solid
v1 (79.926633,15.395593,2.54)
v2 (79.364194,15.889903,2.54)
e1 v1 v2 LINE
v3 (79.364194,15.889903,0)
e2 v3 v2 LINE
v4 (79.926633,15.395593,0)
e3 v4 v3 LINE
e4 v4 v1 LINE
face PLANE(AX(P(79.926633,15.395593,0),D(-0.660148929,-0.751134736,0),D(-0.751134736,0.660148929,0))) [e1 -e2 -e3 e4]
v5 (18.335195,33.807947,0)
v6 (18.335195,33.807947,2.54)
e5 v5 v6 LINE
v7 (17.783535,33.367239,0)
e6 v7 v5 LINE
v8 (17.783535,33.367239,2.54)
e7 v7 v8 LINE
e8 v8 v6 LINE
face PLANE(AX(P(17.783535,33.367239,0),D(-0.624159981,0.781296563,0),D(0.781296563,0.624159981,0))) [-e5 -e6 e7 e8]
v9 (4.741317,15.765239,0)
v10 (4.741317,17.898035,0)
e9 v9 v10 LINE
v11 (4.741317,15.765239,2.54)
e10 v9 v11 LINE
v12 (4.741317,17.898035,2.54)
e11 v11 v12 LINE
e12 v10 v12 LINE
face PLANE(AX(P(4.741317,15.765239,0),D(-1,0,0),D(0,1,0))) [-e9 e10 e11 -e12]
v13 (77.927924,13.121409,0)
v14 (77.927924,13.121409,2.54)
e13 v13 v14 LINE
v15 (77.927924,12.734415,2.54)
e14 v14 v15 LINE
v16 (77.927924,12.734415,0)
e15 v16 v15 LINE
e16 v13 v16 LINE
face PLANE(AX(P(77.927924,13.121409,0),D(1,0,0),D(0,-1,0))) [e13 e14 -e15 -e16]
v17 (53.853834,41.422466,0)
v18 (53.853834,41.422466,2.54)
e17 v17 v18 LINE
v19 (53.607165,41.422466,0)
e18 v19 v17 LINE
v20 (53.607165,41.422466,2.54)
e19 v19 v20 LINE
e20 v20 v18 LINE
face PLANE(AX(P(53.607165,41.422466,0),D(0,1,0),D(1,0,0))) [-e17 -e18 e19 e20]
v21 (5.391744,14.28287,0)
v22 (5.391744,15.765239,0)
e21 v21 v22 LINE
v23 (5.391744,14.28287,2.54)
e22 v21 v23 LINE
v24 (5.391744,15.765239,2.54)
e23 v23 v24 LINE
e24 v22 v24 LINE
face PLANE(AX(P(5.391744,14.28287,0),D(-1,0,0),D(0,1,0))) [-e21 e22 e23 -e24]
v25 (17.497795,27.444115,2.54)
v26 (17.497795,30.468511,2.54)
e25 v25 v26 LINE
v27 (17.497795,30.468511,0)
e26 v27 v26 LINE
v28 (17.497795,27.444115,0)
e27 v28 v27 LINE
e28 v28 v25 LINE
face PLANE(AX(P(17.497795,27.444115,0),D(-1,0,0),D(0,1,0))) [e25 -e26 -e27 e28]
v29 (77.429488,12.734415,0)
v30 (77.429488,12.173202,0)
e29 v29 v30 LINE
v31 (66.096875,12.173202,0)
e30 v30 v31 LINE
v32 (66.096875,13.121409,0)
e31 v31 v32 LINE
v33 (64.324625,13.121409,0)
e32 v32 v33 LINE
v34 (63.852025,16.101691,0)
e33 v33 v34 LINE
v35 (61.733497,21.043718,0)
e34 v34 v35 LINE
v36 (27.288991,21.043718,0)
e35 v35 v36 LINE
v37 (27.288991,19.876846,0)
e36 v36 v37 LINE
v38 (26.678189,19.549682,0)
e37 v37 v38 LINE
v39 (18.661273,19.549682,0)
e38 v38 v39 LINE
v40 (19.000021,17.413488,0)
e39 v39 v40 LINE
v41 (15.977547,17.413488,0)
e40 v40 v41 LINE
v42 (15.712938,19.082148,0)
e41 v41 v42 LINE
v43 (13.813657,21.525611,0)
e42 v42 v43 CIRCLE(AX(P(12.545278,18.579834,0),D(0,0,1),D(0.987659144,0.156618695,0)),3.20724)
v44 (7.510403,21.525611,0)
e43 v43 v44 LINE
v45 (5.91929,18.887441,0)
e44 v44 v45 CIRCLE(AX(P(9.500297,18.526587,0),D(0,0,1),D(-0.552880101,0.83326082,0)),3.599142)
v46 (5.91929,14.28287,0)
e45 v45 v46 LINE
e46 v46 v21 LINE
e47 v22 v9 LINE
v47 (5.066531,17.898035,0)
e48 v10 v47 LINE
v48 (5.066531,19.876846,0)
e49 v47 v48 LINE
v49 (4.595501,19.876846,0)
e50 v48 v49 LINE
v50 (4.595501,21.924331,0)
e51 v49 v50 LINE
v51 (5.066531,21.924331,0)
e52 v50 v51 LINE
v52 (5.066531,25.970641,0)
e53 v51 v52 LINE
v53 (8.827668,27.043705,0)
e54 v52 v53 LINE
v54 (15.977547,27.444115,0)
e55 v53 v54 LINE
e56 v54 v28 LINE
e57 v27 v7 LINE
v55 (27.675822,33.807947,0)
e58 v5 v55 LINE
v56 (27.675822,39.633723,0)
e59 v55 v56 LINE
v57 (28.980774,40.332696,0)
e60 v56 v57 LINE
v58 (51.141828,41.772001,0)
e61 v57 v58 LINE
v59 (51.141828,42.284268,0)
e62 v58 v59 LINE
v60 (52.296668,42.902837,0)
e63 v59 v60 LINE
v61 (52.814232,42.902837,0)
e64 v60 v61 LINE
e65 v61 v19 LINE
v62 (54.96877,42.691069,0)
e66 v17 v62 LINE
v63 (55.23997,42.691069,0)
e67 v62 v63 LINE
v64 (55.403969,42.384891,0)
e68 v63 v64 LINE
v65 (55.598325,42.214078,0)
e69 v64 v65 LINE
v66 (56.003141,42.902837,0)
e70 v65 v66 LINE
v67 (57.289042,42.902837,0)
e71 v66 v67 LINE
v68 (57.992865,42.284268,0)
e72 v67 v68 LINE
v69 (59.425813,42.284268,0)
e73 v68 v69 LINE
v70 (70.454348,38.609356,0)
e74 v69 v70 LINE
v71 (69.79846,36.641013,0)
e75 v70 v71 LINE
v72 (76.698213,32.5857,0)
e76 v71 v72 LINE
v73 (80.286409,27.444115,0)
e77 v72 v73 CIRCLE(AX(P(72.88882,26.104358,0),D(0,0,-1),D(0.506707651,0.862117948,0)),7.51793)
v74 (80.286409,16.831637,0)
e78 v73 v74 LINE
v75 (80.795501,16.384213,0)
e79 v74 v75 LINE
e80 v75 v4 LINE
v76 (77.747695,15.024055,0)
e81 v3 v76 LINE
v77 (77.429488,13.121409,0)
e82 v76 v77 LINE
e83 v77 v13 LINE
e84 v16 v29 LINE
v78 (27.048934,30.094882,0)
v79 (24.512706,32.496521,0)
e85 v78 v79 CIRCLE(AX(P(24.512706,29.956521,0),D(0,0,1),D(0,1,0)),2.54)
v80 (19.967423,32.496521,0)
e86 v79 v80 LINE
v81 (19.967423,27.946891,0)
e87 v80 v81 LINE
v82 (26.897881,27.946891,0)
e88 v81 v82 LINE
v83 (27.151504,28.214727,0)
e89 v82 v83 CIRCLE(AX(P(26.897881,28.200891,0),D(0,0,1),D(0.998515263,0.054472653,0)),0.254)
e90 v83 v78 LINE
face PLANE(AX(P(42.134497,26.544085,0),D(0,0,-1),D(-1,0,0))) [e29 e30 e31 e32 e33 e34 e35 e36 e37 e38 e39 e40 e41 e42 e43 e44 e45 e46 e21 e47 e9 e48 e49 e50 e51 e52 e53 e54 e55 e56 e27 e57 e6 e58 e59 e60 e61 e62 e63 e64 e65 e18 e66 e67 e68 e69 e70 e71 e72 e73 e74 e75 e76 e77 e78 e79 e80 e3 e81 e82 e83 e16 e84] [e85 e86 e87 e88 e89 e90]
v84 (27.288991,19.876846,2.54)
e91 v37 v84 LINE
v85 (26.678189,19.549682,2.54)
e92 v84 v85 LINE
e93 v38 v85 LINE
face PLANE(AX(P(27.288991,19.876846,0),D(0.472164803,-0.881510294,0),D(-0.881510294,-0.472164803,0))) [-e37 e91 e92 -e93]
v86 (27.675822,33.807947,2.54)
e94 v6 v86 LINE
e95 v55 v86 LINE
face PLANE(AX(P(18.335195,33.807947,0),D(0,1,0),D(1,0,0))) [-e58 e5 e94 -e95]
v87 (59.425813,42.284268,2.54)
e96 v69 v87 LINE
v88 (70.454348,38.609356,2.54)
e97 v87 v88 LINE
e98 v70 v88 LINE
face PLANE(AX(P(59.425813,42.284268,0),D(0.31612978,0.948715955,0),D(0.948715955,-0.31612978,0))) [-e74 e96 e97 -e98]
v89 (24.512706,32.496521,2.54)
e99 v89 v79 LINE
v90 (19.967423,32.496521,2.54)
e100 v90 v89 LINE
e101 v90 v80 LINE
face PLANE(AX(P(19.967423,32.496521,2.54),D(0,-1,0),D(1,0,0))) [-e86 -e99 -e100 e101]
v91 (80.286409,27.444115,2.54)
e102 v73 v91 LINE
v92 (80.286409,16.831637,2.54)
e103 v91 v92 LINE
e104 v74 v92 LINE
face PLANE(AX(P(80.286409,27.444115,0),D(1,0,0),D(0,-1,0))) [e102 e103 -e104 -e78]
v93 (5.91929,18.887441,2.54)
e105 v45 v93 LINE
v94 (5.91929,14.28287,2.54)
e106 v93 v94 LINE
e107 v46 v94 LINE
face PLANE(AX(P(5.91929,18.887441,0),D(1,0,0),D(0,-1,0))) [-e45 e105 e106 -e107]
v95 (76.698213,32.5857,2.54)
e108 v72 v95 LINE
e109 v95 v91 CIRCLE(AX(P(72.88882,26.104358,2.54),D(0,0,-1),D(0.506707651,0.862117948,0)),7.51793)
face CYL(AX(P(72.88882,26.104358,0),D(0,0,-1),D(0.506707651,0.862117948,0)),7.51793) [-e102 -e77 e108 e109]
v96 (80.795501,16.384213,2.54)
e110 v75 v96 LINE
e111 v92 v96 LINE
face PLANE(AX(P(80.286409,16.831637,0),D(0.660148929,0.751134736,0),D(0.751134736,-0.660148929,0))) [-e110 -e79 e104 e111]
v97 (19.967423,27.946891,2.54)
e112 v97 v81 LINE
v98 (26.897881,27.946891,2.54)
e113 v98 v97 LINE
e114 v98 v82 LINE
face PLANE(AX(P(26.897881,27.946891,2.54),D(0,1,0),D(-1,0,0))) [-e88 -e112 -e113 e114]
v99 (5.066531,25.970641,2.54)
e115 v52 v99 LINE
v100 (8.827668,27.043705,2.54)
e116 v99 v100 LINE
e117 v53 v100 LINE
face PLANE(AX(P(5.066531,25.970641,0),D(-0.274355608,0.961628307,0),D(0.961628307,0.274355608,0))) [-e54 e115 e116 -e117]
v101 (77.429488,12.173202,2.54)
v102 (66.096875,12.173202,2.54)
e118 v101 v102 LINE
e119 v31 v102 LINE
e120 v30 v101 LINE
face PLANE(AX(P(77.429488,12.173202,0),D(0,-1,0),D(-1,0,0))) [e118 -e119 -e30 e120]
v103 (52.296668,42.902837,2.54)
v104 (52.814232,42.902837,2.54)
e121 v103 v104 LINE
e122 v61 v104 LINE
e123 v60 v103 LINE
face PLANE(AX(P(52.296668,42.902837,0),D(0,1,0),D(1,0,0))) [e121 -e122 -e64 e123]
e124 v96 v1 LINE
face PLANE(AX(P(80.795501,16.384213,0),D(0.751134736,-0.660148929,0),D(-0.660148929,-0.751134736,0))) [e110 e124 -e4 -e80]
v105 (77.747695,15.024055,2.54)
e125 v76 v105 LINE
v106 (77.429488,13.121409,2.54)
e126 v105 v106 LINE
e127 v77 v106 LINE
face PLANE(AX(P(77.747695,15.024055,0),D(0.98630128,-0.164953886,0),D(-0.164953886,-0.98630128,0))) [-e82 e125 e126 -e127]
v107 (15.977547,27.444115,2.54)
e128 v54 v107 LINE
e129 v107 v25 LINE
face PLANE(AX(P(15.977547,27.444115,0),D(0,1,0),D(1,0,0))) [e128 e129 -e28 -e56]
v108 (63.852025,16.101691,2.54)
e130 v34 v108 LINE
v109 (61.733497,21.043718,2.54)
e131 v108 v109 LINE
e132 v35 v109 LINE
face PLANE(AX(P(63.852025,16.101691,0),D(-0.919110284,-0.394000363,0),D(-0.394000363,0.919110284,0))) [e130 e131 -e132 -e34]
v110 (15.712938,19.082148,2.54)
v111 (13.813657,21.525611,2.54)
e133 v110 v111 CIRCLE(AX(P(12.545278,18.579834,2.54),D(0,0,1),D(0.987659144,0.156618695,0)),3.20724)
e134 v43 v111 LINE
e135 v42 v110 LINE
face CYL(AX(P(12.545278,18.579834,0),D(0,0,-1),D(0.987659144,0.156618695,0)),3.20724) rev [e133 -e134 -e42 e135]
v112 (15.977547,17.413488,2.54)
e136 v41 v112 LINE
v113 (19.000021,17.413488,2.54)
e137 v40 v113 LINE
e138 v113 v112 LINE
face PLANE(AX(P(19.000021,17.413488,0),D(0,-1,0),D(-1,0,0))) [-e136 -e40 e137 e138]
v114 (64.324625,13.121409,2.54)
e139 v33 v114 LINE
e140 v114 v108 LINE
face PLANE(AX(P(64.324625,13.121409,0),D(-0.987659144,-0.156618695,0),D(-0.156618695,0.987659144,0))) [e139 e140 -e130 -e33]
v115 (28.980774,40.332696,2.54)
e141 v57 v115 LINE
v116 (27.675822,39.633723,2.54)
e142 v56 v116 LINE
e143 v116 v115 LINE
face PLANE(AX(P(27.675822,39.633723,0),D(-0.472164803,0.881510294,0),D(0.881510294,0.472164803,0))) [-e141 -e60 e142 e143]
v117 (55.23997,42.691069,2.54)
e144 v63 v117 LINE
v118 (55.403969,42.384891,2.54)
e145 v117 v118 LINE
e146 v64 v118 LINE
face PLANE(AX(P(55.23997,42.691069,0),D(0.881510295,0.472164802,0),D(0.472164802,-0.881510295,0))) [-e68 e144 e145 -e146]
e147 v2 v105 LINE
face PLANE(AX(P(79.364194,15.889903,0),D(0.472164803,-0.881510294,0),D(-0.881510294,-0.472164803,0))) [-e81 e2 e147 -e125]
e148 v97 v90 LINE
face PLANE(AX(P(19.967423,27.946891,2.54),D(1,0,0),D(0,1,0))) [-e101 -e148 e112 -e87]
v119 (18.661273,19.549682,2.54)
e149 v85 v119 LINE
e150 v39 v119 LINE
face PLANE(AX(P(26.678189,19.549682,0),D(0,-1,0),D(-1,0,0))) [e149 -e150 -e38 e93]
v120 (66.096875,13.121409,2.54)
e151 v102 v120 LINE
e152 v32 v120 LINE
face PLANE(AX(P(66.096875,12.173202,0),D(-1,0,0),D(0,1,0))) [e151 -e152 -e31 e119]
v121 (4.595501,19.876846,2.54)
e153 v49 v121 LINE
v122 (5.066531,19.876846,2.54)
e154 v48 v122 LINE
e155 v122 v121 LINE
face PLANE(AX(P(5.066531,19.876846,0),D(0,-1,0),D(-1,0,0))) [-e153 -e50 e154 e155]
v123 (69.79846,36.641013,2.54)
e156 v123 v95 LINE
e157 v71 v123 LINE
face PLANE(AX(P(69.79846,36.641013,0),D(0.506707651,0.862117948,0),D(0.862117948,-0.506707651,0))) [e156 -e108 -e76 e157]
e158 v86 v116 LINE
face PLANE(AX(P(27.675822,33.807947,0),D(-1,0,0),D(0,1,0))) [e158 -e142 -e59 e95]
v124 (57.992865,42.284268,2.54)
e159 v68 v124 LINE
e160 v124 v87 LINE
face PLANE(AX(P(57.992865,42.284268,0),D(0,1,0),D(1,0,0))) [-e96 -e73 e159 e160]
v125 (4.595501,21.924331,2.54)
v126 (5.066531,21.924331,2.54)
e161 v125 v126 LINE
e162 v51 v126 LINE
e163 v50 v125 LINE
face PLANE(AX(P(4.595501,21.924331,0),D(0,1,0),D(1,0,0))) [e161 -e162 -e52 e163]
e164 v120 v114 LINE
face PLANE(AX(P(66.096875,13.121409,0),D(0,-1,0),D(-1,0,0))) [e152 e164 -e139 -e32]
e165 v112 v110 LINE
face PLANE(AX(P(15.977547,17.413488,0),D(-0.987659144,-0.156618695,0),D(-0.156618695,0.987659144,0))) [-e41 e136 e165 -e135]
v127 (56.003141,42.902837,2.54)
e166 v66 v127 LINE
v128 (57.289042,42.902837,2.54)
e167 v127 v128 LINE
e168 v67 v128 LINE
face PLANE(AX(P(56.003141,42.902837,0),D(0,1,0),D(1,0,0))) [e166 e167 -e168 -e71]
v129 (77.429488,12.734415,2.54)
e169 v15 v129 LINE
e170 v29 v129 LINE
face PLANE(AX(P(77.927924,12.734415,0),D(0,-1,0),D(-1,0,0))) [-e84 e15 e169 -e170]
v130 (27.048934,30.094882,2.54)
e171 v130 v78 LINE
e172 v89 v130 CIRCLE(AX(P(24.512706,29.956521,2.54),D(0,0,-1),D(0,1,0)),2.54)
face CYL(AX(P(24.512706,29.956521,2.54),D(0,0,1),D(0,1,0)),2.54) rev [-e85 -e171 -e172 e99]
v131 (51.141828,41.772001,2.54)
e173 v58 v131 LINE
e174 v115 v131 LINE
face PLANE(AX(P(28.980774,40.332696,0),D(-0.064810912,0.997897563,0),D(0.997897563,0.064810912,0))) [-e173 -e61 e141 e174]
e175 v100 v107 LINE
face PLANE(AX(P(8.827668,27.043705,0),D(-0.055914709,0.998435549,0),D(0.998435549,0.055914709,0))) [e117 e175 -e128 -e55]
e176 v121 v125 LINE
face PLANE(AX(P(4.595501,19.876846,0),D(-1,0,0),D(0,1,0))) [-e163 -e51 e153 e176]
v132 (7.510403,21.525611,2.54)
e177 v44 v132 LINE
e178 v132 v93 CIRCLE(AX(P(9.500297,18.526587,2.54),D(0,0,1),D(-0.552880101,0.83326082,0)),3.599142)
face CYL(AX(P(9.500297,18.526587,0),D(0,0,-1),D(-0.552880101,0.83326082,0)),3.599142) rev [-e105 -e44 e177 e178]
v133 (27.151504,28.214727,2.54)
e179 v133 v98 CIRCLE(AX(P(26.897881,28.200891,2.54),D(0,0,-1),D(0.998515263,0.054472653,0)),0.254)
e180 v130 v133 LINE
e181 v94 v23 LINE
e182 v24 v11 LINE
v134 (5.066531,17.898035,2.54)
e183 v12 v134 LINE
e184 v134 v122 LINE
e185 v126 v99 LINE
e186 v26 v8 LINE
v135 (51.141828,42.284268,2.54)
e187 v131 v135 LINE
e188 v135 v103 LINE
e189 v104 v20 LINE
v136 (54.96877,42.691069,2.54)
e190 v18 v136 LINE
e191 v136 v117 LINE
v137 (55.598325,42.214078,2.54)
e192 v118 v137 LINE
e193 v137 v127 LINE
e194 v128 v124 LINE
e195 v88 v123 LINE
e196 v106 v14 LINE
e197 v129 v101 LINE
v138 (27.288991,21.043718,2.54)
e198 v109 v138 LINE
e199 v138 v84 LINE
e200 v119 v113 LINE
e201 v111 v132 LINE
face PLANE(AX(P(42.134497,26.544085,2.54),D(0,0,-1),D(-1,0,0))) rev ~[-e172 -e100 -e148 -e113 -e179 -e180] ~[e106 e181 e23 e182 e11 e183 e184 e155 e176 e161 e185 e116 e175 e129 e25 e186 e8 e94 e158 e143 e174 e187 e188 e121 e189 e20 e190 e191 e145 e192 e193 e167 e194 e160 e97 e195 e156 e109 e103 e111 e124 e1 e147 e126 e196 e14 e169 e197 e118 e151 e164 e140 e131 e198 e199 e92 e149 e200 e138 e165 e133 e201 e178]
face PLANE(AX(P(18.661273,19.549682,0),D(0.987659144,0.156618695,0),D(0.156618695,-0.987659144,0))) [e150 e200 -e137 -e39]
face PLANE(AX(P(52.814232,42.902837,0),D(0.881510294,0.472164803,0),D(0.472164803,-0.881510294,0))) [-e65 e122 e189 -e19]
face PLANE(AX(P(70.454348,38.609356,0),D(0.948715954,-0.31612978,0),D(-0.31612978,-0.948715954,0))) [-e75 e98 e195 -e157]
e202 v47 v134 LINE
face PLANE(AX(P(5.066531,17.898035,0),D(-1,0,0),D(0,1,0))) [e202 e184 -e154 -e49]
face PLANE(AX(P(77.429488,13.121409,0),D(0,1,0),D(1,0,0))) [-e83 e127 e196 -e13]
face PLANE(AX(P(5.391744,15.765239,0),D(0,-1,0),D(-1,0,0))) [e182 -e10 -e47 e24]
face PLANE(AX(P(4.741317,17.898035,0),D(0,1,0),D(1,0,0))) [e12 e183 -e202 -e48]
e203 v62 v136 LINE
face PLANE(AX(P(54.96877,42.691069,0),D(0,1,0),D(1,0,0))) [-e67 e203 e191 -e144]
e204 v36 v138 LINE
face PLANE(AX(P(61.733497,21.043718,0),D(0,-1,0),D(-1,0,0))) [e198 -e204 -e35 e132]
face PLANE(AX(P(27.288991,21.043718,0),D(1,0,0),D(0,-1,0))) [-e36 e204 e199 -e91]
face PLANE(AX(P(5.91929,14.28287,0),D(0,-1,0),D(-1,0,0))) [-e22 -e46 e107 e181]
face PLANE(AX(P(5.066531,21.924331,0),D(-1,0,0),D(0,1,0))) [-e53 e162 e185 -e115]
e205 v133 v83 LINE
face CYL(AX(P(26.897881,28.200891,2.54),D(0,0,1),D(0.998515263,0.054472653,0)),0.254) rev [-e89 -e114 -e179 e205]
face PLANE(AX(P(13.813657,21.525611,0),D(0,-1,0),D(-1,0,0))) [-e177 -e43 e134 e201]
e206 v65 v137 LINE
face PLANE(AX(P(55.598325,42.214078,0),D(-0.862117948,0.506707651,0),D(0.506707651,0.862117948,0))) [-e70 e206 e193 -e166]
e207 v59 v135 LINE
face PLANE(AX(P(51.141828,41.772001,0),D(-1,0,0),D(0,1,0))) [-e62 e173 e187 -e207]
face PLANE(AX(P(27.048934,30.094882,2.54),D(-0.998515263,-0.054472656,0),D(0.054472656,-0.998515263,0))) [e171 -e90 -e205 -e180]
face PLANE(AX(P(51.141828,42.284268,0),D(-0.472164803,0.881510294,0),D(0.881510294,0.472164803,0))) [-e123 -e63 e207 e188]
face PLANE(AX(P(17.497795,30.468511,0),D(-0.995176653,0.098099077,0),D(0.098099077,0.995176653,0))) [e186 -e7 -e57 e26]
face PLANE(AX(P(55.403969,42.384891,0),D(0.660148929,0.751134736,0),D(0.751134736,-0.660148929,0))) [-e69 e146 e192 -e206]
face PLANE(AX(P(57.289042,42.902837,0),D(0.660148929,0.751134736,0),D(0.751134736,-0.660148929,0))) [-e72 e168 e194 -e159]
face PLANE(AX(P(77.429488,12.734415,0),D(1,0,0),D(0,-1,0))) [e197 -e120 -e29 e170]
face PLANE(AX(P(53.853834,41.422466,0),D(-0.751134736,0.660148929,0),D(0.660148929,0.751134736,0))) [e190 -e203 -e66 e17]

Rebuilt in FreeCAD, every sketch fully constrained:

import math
import FreeCAD as App
import Part
import Sketcher

V = App.Vector
Q = App.Units.Quantity

doc = App.newDocument("Part")
body = doc.addObject("PartDesign::Body", "Body")

sketch1 = body.newObject("Sketcher::SketchObject", "Sketch")
sketch1.AttachmentSupport = (doc.getObject("XY_Plane"), [""])
sketch1.MapMode = "FlatFace"
sketch1.addGeometry(Part.LineSegment(V(5.39, 15.77, 0), V(5.39, 14.28, 0)), False)
sketch1.addGeometry(Part.LineSegment(V(5.39, 14.28, 0), V(5.92, 14.28, 0)), False)
sketch1.addGeometry(Part.LineSegment(V(5.92, 14.28, 0), V(5.92, 18.89, 0)), False)
sketch1.addGeometry(Part.ArcOfCircle(Part.Circle(V(9.5, 18.53, 0), V(0, 0, 1), 3.6), math.radians(124), math.radians(174)), False)
sketch1.addGeometry(Part.LineSegment(V(7.51, 21.53, 0), V(13.81, 21.53, 0)), False)
sketch1.addGeometry(Part.ArcOfCircle(Part.Circle(V(12.55, 18.58, 0), V(0, 0, 1), 3.21), math.radians(9), math.radians(67)), False)
sketch1.addGeometry(Part.LineSegment(V(15.71, 19.08, 0), V(15.98, 17.41, 0)), False)
sketch1.addGeometry(Part.LineSegment(V(15.98, 17.41, 0), V(19, 17.41, 0)), False)
sketch1.addGeometry(Part.LineSegment(V(19, 17.41, 0), V(18.66, 19.55, 0)), False)
sketch1.addGeometry(Part.LineSegment(V(18.66, 19.55, 0), V(26.68, 19.55, 0)), False)
sketch1.addGeometry(Part.LineSegment(V(26.68, 19.55, 0), V(27.29, 19.88, 0)), False)
sketch1.addGeometry(Part.LineSegment(V(27.29, 19.88, 0), V(27.29, 21.04, 0)), False)
sketch1.addGeometry(Part.LineSegment(V(27.29, 21.04, 0), V(61.73, 21.04, 0)), False)
sketch1.addGeometry(Part.LineSegment(V(61.73, 21.04, 0), V(63.85, 16.1, 0)), False)
sketch1.addGeometry(Part.LineSegment(V(63.85, 16.1, 0), V(64.32, 13.12, 0)), False)
sketch1.addGeometry(Part.LineSegment(V(64.32, 13.12, 0), V(66.1, 13.12, 0)), False)
sketch1.addGeometry(Part.LineSegment(V(66.1, 13.12, 0), V(66.1, 12.17, 0)), False)
sketch1.addGeometry(Part.LineSegment(V(66.1, 12.17, 0), V(77.43, 12.17, 0)), False)
sketch1.addGeometry(Part.LineSegment(V(77.43, 12.17, 0), V(77.43, 12.73, 0)), False)
sketch1.addGeometry(Part.LineSegment(V(77.43, 12.73, 0), V(77.93, 12.73, 0)), False)
sketch1.addGeometry(Part.LineSegment(V(77.93, 12.73, 0), V(77.93, 13.12, 0)), False)
sketch1.addGeometry(Part.LineSegment(V(77.93, 13.12, 0), V(77.43, 13.12, 0)), False)
sketch1.addGeometry(Part.LineSegment(V(77.43, 13.12, 0), V(77.75, 15.02, 0)), False)
sketch1.addGeometry(Part.LineSegment(V(77.75, 15.02, 0), V(79.36, 15.89, 0)), False)
sketch1.addGeometry(Part.LineSegment(V(79.36, 15.89, 0), V(79.93, 15.4, 0)), False)
sketch1.addGeometry(Part.LineSegment(V(79.93, 15.4, 0), V(80.8, 16.38, 0)), False)
sketch1.addGeometry(Part.LineSegment(V(80.8, 16.38, 0), V(80.29, 16.83, 0)), False)
sketch1.addGeometry(Part.LineSegment(V(80.29, 16.83, 0), V(80.29, 27.44, 0)), False)
sketch1.addGeometry(Part.ArcOfCircle(Part.Circle(V(72.89, 26.1, 0), V(0, 0, 1), 7.52), math.radians(10), math.radians(60)), False)
sketch1.addGeometry(Part.LineSegment(V(76.7, 32.59, 0), V(69.8, 36.64, 0)), False)
sketch1.addGeometry(Part.LineSegment(V(69.8, 36.64, 0), V(70.45, 38.61, 0)), False)
sketch1.addGeometry(Part.LineSegment(V(70.45, 38.61, 0), V(59.43, 42.28, 0)), False)
sketch1.addGeometry(Part.LineSegment(V(59.43, 42.28, 0), V(57.99, 42.28, 0)), False)
sketch1.addGeometry(Part.LineSegment(V(57.99, 42.28, 0), V(57.29, 42.9, 0)), False)
sketch1.addGeometry(Part.LineSegment(V(57.29, 42.9, 0), V(56, 42.9, 0)), False)
sketch1.addGeometry(Part.LineSegment(V(56, 42.9, 0), V(55.6, 42.21, 0)), False)
sketch1.addGeometry(Part.LineSegment(V(55.6, 42.21, 0), V(55.4, 42.38, 0)), False)
sketch1.addGeometry(Part.LineSegment(V(55.4, 42.38, 0), V(55.24, 42.69, 0)), False)
sketch1.addGeometry(Part.LineSegment(V(55.24, 42.69, 0), V(54.97, 42.69, 0)), False)
sketch1.addGeometry(Part.LineSegment(V(54.97, 42.69, 0), V(53.85, 41.42, 0)), False)
sketch1.addGeometry(Part.LineSegment(V(53.85, 41.42, 0), V(53.61, 41.42, 0)), False)
sketch1.addGeometry(Part.LineSegment(V(53.61, 41.42, 0), V(52.81, 42.9, 0)), False)
sketch1.addGeometry(Part.LineSegment(V(52.81, 42.9, 0), V(52.3, 42.9, 0)), False)
sketch1.addGeometry(Part.LineSegment(V(52.3, 42.9, 0), V(51.14, 42.28, 0)), False)
sketch1.addGeometry(Part.LineSegment(V(51.14, 42.28, 0), V(51.14, 41.77, 0)), False)
sketch1.addGeometry(Part.LineSegment(V(51.14, 41.77, 0), V(28.98, 40.33, 0)), False)
sketch1.addGeometry(Part.LineSegment(V(28.98, 40.33, 0), V(27.68, 39.63, 0)), False)
sketch1.addGeometry(Part.LineSegment(V(27.68, 39.63, 0), V(27.68, 33.81, 0)), False)
sketch1.addGeometry(Part.LineSegment(V(27.68, 33.81, 0), V(18.34, 33.81, 0)), False)
sketch1.addGeometry(Part.LineSegment(V(18.34, 33.81, 0), V(17.78, 33.37, 0)), False)
sketch1.addGeometry(Part.LineSegment(V(17.78, 33.37, 0), V(17.5, 30.47, 0)), False)
sketch1.addGeometry(Part.LineSegment(V(17.5, 30.47, 0), V(17.5, 27.44, 0)), False)
sketch1.addGeometry(Part.LineSegment(V(17.5, 27.44, 0), V(15.98, 27.44, 0)), False)
sketch1.addGeometry(Part.LineSegment(V(15.98, 27.44, 0), V(8.83, 27.04, 0)), False)
sketch1.addGeometry(Part.LineSegment(V(8.83, 27.04, 0), V(5.07, 25.97, 0)), False)
sketch1.addGeometry(Part.LineSegment(V(5.07, 25.97, 0), V(5.07, 21.92, 0)), False)
sketch1.addGeometry(Part.LineSegment(V(5.07, 21.92, 0), V(4.6, 21.92, 0)), False)
sketch1.addGeometry(Part.LineSegment(V(4.6, 21.92, 0), V(4.6, 19.88, 0)), False)
sketch1.addGeometry(Part.LineSegment(V(4.6, 19.88, 0), V(5.07, 19.88, 0)), False)
sketch1.addGeometry(Part.LineSegment(V(5.07, 19.88, 0), V(5.07, 17.9, 0)), False)
sketch1.addGeometry(Part.LineSegment(V(5.07, 17.9, 0), V(4.74, 17.9, 0)), False)
sketch1.addGeometry(Part.LineSegment(V(4.74, 17.9, 0), V(4.74, 15.77, 0)), False)
sketch1.addGeometry(Part.LineSegment(V(4.74, 15.77, 0), V(5.39, 15.77, 0)), False)
sketch1.addConstraint(Sketcher.Constraint("Coincident", 0, 2, 1, 1))
sketch1.addConstraint(Sketcher.Constraint("Coincident", 1, 2, 2, 1))
sketch1.addConstraint(Sketcher.Constraint("Coincident", 2, 2, 3, 2))
sketch1.addConstraint(Sketcher.Constraint("Coincident", 3, 1, 4, 1))
sketch1.addConstraint(Sketcher.Constraint("Coincident", 4, 2, 5, 2))
sketch1.addConstraint(Sketcher.Constraint("Tangent", 5, 1, 6, 1))
sketch1.addConstraint(Sketcher.Constraint("Coincident", 6, 2, 7, 1))
sketch1.addConstraint(Sketcher.Constraint("Coincident", 7, 2, 8, 1))
sketch1.addConstraint(Sketcher.Constraint("Coincident", 8, 2, 9, 1))
sketch1.addConstraint(Sketcher.Constraint("Coincident", 9, 2, 10, 1))
sketch1.addConstraint(Sketcher.Constraint("Coincident", 10, 2, 11, 1))
sketch1.addConstraint(Sketcher.Constraint("Coincident", 11, 2, 12, 1))
sketch1.addConstraint(Sketcher.Constraint("Coincident", 12, 2, 13, 1))
sketch1.addConstraint(Sketcher.Constraint("Coincident", 13, 2, 14, 1))
sketch1.addConstraint(Sketcher.Constraint("Coincident", 14, 2, 15, 1))
sketch1.addConstraint(Sketcher.Constraint("Coincident", 15, 2, 16, 1))
sketch1.addConstraint(Sketcher.Constraint("Coincident", 16, 2, 17, 1))
sketch1.addConstraint(Sketcher.Constraint("Coincident", 17, 2, 18, 1))
sketch1.addConstraint(Sketcher.Constraint("Coincident", 18, 2, 19, 1))
sketch1.addConstraint(Sketcher.Constraint("Coincident", 19, 2, 20, 1))
sketch1.addConstraint(Sketcher.Constraint("Coincident", 20, 2, 21, 1))
sketch1.addConstraint(Sketcher.Constraint("Coincident", 21, 2, 22, 1))
sketch1.addConstraint(Sketcher.Constraint("Coincident", 22, 2, 23, 1))
sketch1.addConstraint(Sketcher.Constraint("Coincident", 23, 2, 24, 1))
sketch1.addConstraint(Sketcher.Constraint("Coincident", 24, 2, 25, 1))
sketch1.addConstraint(Sketcher.Constraint("Coincident", 25, 2, 26, 1))
sketch1.addConstraint(Sketcher.Constraint("Coincident", 26, 2, 27, 1))
sketch1.addConstraint(Sketcher.Constraint("Coincident", 27, 2, 28, 1))
sketch1.addConstraint(Sketcher.Constraint("Tangent", 28, 2, 29, 1))
sketch1.addConstraint(Sketcher.Constraint("Coincident", 29, 2, 30, 1))
sketch1.addConstraint(Sketcher.Constraint("Coincident", 30, 2, 31, 1))
sketch1.addConstraint(Sketcher.Constraint("Coincident", 31, 2, 32, 1))
sketch1.addConstraint(Sketcher.Constraint("Coincident", 32, 2, 33, 1))
sketch1.addConstraint(Sketcher.Constraint("Coincident", 33, 2, 34, 1))
sketch1.addConstraint(Sketcher.Constraint("Coincident", 34, 2, 35, 1))
sketch1.addConstraint(Sketcher.Constraint("Coincident", 35, 2, 36, 1))
sketch1.addConstraint(Sketcher.Constraint("Coincident", 36, 2, 37, 1))
sketch1.addConstraint(Sketcher.Constraint("Coincident", 37, 2, 38, 1))
sketch1.addConstraint(Sketcher.Constraint("Coincident", 38, 2, 39, 1))
sketch1.addConstraint(Sketcher.Constraint("Coincident", 39, 2, 40, 1))
sketch1.addConstraint(Sketcher.Constraint("Coincident", 40, 2, 41, 1))
sketch1.addConstraint(Sketcher.Constraint("Coincident", 41, 2, 42, 1))
sketch1.addConstraint(Sketcher.Constraint("Coincident", 42, 2, 43, 1))
sketch1.addConstraint(Sketcher.Constraint("Coincident", 43, 2, 44, 1))
sketch1.addConstraint(Sketcher.Constraint("Coincident", 44, 2, 45, 1))
sketch1.addConstraint(Sketcher.Constraint("Coincident", 45, 2, 46, 1))
sketch1.addConstraint(Sketcher.Constraint("Coincident", 46, 2, 47, 1))
sketch1.addConstraint(Sketcher.Constraint("Coincident", 47, 2, 48, 1))
sketch1.addConstraint(Sketcher.Constraint("Coincident", 48, 2, 49, 1))
sketch1.addConstraint(Sketcher.Constraint("Coincident", 49, 2, 50, 1))
sketch1.addConstraint(Sketcher.Constraint("Coincident", 50, 2, 51, 1))
sketch1.addConstraint(Sketcher.Constraint("Coincident", 51, 2, 52, 1))
sketch1.addConstraint(Sketcher.Constraint("Coincident", 52, 2, 53, 1))
sketch1.addConstraint(Sketcher.Constraint("Coincident", 53, 2, 54, 1))
sketch1.addConstraint(Sketcher.Constraint("Coincident", 54, 2, 55, 1))
sketch1.addConstraint(Sketcher.Constraint("Coincident", 55, 2, 56, 1))
sketch1.addConstraint(Sketcher.Constraint("Coincident", 56, 2, 57, 1))
sketch1.addConstraint(Sketcher.Constraint("Coincident", 57, 2, 58, 1))
sketch1.addConstraint(Sketcher.Constraint("Coincident", 58, 2, 59, 1))
sketch1.addConstraint(Sketcher.Constraint("Coincident", 59, 2, 60, 1))
sketch1.addConstraint(Sketcher.Constraint("Coincident", 60, 2, 61, 1))
sketch1.addConstraint(Sketcher.Constraint("Coincident", 61, 2, 62, 1))
sketch1.addConstraint(Sketcher.Constraint("Coincident", 62, 2, 0, 1))
sketch1.addConstraint(Sketcher.Constraint("Vertical", 0))
sketch1.addConstraint(Sketcher.Constraint("Horizontal", 1))
sketch1.addConstraint(Sketcher.Constraint("Vertical", 2))
sketch1.addConstraint(Sketcher.Constraint("Horizontal", 4))
sketch1.addConstraint(Sketcher.Constraint("Horizontal", 7))
sketch1.addConstraint(Sketcher.Constraint("Horizontal", 9))
sketch1.addConstraint(Sketcher.Constraint("Vertical", 11))
sketch1.addConstraint(Sketcher.Constraint("Horizontal", 12))
sketch1.addConstraint(Sketcher.Constraint("Horizontal", 15))
sketch1.addConstraint(Sketcher.Constraint("Vertical", 16))
sketch1.addConstraint(Sketcher.Constraint("Horizontal", 17))
sketch1.addConstraint(Sketcher.Constraint("Vertical", 18))
sketch1.addConstraint(Sketcher.Constraint("Horizontal", 19))
sketch1.addConstraint(Sketcher.Constraint("Vertical", 20))
sketch1.addConstraint(Sketcher.Constraint("Horizontal", 21))
sketch1.addConstraint(Sketcher.Constraint("Vertical", 27))
sketch1.addConstraint(Sketcher.Constraint("Horizontal", 32))
sketch1.addConstraint(Sketcher.Constraint("Horizontal", 34))
sketch1.addConstraint(Sketcher.Constraint("Horizontal", 38))
sketch1.addConstraint(Sketcher.Constraint("Horizontal", 40))
sketch1.addConstraint(Sketcher.Constraint("Horizontal", 42))
sketch1.addConstraint(Sketcher.Constraint("Vertical", 44))
sketch1.addConstraint(Sketcher.Constraint("Vertical", 47))
sketch1.addConstraint(Sketcher.Constraint("Horizontal", 48))
sketch1.addConstraint(Sketcher.Constraint("Vertical", 51))
sketch1.addConstraint(Sketcher.Constraint("Horizontal", 52))
sketch1.addConstraint(Sketcher.Constraint("Vertical", 55))
sketch1.addConstraint(Sketcher.Constraint("Horizontal", 56))
sketch1.addConstraint(Sketcher.Constraint("Vertical", 57))
sketch1.addConstraint(Sketcher.Constraint("Horizontal", 58))
sketch1.addConstraint(Sketcher.Constraint("Vertical", 59))
sketch1.addConstraint(Sketcher.Constraint("Horizontal", 60))
sketch1.addConstraint(Sketcher.Constraint("Vertical", 61))
sketch1.addConstraint(Sketcher.Constraint("Horizontal", 62))
sketch1.addConstraint(Sketcher.Constraint("Parallel", 6, 8))
sketch1.addConstraint(Sketcher.Constraint("Parallel", 8, 14))
sketch1.addConstraint(Sketcher.Constraint("Parallel", 10, 23))
sketch1.addConstraint(Sketcher.Constraint("Perpendicular", 24, 25))
sketch1.addConstraint(Sketcher.Constraint("Perpendicular", 25, 26))
sketch1.addConstraint(Sketcher.Constraint("Perpendicular", 30, 31))
sketch1.addConstraint(Sketcher.Constraint("Parallel", 26, 33))
sketch1.addConstraint(Sketcher.Constraint("Perpendicular", 29, 35))
sketch1.addConstraint(Sketcher.Constraint("Parallel", 33, 36))
sketch1.addConstraint(Sketcher.Constraint("Perpendicular", 23, 37))
sketch1.addConstraint(Sketcher.Constraint("Perpendicular", 36, 39))
sketch1.addConstraint(Sketcher.Constraint("Parallel", 37, 41))
sketch1.addConstraint(Sketcher.Constraint("Perpendicular", 41, 43))
sketch1.addConstraint(Sketcher.Constraint("Parallel", 43, 46))
sketch1.addConstraint(Sketcher.Constraint("Horizontal", 15, 2, 20, 2))
sketch1.addConstraint(Sketcher.Constraint("Horizontal", 34, 2, 41, 2))
sketch1.addConstraint(Sketcher.Constraint("Horizontal", 32, 2, 43, 2))
sketch1.addConstraint(Sketcher.Constraint("Horizontal", 27, 2, 51, 2))
sketch1.addConstraint(Sketcher.Constraint("Horizontal", 10, 2, 57, 2))
sketch1.addConstraint(Sketcher.Constraint("Vertical", 18, 2, 21, 2))
sketch1.addConstraint(Sketcher.Constraint("Vertical", 6, 2, 52, 2))
sketch1.addConstraint(Sketcher.Constraint("Vertical", 55, 2, 58, 2))
sketch1.addConstraint(Sketcher.Constraint("Radius", 5, Q("3.20724 mm")))
sketch1.addConstraint(Sketcher.Constraint("Radius", 28, Q("7.51793 mm")))
sketch1.addConstraint(Sketcher.Constraint("Distance", 14, Q("0.1188 in")))
sketch1.addConstraint(Sketcher.Constraint("DistanceX", 34, 2, 34, 1, Q("1.2859 mm")))
sketch1.addConstraint(Sketcher.Constraint("DistanceX", 38, 2, 38, 1, Q("0.271201 mm")))
sketch1.addConstraint(Sketcher.Constraint("DistanceY", -1, 1, 2, 2, Q("0.7436 in")))
sketch1.addConstraint(Sketcher.Constraint("Radius", 3, Q("3.599142 mm")))
sketch1.addConstraint(Sketcher.Constraint("DistanceX", 15, 1, 15, 2, Q("1.772251 mm")))
sketch1.addConstraint(Sketcher.Constraint("DistanceX", 40, 2, 40, 1, Q("0.246669 mm")))
sketch1.addConstraint(Sketcher.Constraint("DistanceX", 56, 2, 56, 1, Q("0.47103 mm")))
sketch1.addConstraint(Sketcher.Constraint("DistanceY", 0, 2, 0, 1, Q("1.482369 mm")))
sketch1.addConstraint(Sketcher.Constraint("DistanceY", 2, 1, 2, 2, Q("4.60457 mm")))
sketch1.addConstraint(Sketcher.Constraint("DistanceY", 11, 1, 11, 2, Q("1.166871 mm")))
sketch1.addConstraint(Sketcher.Constraint("DistanceY", 27, 1, 27, 2, Q("10.612478 mm")))
sketch1.addConstraint(Sketcher.Constraint("DistanceY", 55, 2, 55, 1, Q("4.046311 mm")))
sketch1.addConstraint(Sketcher.Constraint("DistanceY", 59, 2, 59, 1, Q("1.978811 mm")))
sketch1.addConstraint(Sketcher.Constraint("DistanceX", -1, 1, 25, 2, Q("80.795501 mm")))
sketch1.addConstraint(Sketcher.Constraint("DistanceY", -1, 1, 28, 2, Q("32.5857 mm")))
sketch1.addConstraint(Sketcher.Constraint("DistanceY", -1, 1, 44, 2, Q("41.772001 mm")))
sketch1.addConstraint(Sketcher.Constraint("DistanceX", -1, 1, 56, 2, Q("4.595501 mm")))
sketch1.addConstraint(Sketcher.Constraint("Distance", 6, Q("1.689509 mm")))
sketch1.addConstraint(Sketcher.Constraint("Distance", 13, Q("5.376968 mm")))
sketch1.addConstraint(Sketcher.Constraint("Distance", 22, Q("1.929072 mm")))
sketch1.addConstraint(Sketcher.Constraint("Distance", 25, Q("1.316169 mm")))
sketch1.addConstraint(Sketcher.Constraint("Distance", 29, Q("8.003259 mm")))
sketch1.addConstraint(Sketcher.Constraint("Distance", 36, Q("0.258749 mm")))
sketch1.addConstraint(Sketcher.Constraint("Distance", 43, Q("1.31007 mm")))
sketch1.addConstraint(Sketcher.Constraint("Distance", 46, Q("1.480359 mm")))
sketch1.addConstraint(Sketcher.Constraint("DistanceX", 1, 1, 1, 2, Q("0.527546 mm")))
sketch1.addConstraint(Sketcher.Constraint("DistanceX", 4, 1, 4, 2, Q("6.303254 mm")))
sketch1.addConstraint(Sketcher.Constraint("DistanceX", 7, 1, 7, 2, Q("3.022474 mm")))
sketch1.addConstraint(Sketcher.Constraint("DistanceX", 9, 1, 9, 2, Q("8.016916 mm")))
sketch1.addConstraint(Sketcher.Constraint("DistanceX", 12, 1, 12, 2, Q("34.444507 mm")))
sketch1.addConstraint(Sketcher.Constraint("DistanceX", 17, 1, 17, 2, Q("11.332612 mm")))
sketch1.addConstraint(Sketcher.Constraint("DistanceX", 19, 1, 19, 2, Q("0.498436 mm")))
sketch1.addConstraint(Sketcher.Constraint("DistanceX", 32, 2, 32, 1, Q("1.432948 mm")))
sketch1.addConstraint(Sketcher.Constraint("DistanceX", 42, 2, 42, 1, Q("0.517564 mm")))
sketch1.addConstraint(Sketcher.Constraint("DistanceX", 48, 2, 48, 1, Q("9.340627 mm")))
sketch1.addConstraint(Sketcher.Constraint("DistanceX", 52, 2, 52, 1, Q("1.520248 mm")))
sketch1.addConstraint(Sketcher.Constraint("DistanceX", 60, 2, 60, 1, Q("0.325214 mm")))
sketch1.addConstraint(Sketcher.Constraint("DistanceX", 62, 1, 62, 2, Q("0.650427 mm")))
sketch1.addConstraint(Sketcher.Constraint("DistanceY", 16, 2, 16, 1, Q("0.948207 mm")))
sketch1.addConstraint(Sketcher.Constraint("DistanceY", 18, 1, 18, 2, Q("0.561213 mm")))
sketch1.addConstraint(Sketcher.Constraint("DistanceY", 44, 2, 44, 1, Q("0.512268 mm")))
sketch1.addConstraint(Sketcher.Constraint("DistanceY", 47, 2, 47, 1, Q("5.825776 mm")))
sketch1.addConstraint(Sketcher.Constraint("DistanceY", 51, 2, 51, 1, Q("3.024396 mm")))
sketch1.addConstraint(Sketcher.Constraint("DistanceY", 57, 2, 57, 1, Q("2.047484 mm")))
sketch1.addConstraint(Sketcher.Constraint("DistanceY", 61, 2, 61, 1, Q("2.132796 mm")))
sketch1.addConstraint(Sketcher.Constraint("DistanceX", -1, 1, 5, 3, Q("12.545278 mm")))
sketch1.addConstraint(Sketcher.Constraint("DistanceX", -1, 1, 28, 3, Q("72.88882 mm")))
sketch1.addConstraint(Sketcher.Constraint("DistanceY", -1, 1, 3, 1, Q("21.525611 mm")))
sketch1.addConstraint(Sketcher.Constraint("DistanceX", -1, 1, 5, 1, Q("15.712938 mm")))
sketch1.addConstraint(Sketcher.Constraint("DistanceY", -1, 1, 6, 2, Q("17.413488 mm")))
sketch1.addConstraint(Sketcher.Constraint("DistanceY", -1, 1, 8, 2, Q("19.549682 mm")))
sketch1.addConstraint(Sketcher.Constraint("DistanceX", -1, 1, 10, 2, Q("27.288991 mm")))
sketch1.addConstraint(Sketcher.Constraint("DistanceY", -1, 1, 13, 2, Q("16.101691 mm")))
sketch1.addConstraint(Sketcher.Constraint("DistanceX", -1, 1, 26, 2, Q("80.286409 mm")))
sketch1.addConstraint(Sketcher.Constraint("DistanceX", -1, 1, 29, 2, Q("69.79846 mm")))
sketch1.addConstraint(Sketcher.Constraint("DistanceX", -1, 1, 30, 2, Q("70.454348 mm")))
sketch1.addConstraint(Sketcher.Constraint("DistanceX", -1, 1, 33, 2, Q("57.289042 mm")))
sketch1.addConstraint(Sketcher.Constraint("DistanceY", -1, 1, 35, 2, Q("42.214078 mm")))
sketch1.addConstraint(Sketcher.Constraint("DistanceX", -1, 1, 36, 2, Q("55.403969 mm")))
sketch1.addConstraint(Sketcher.Constraint("DistanceX", -1, 1, 37, 2, Q("55.23997 mm")))
sketch1.addConstraint(Sketcher.Constraint("DistanceX", -1, 1, 41, 2, Q("52.814232 mm")))
sketch1.addConstraint(Sketcher.Constraint("DistanceY", -1, 1, 49, 2, Q("33.367239 mm")))
sketch1.addConstraint(Sketcher.Constraint("Distance", 23, Q("1.833783 mm")))
sketch1.addConstraint(Sketcher.Constraint("Distance", 45, Q("22.207745 mm")))
sketch1.addConstraint(Sketcher.Constraint("Distance", 49, Q("0.706082 mm")))
sketch1.addConstraint(Sketcher.Constraint("Distance", 50, Q("2.912777 mm")))
sketch1.addConstraint(Sketcher.Constraint("Distance", 53, Q("7.161082 mm")))
sketch1.addConstraint(Sketcher.Constraint("Distance", 54, Q("3.911217 mm")))
pad1 = body.newObject("PartDesign::Pad", "Pad")
pad1.Profile = sketch1
pad1.Length = Q("0.1 in")

sketch2 = body.newObject("Sketcher::SketchObject", "Sketch001")
sketch2.AttachmentSupport = (doc.getObject("XY_Plane"), [""])
sketch2.MapMode = "FlatFace"
sketch2.AttachmentOffset = App.Placement(V(0, 0, 0.1 * 25.4), App.Rotation())
sketch2.addGeometry(Part.LineSegment(V(24.51, 32.5, 0), V(19.97, 32.5, 0)), False)
sketch2.addGeometry(Part.LineSegment(V(19.97, 32.5, 0), V(19.97, 27.95, 0)), False)
sketch2.addGeometry(Part.LineSegment(V(19.97, 27.95, 0), V(26.9, 27.95, 0)), False)
sketch2.addGeometry(Part.ArcOfCircle(Part.Circle(V(26.9, 28.2, 0), V(0, 0, 1), 0.25), math.radians(-90), math.radians(3)), False)
sketch2.addGeometry(Part.LineSegment(V(27.15, 28.21, 0), V(27.05, 30.09, 0)), False)
sketch2.addGeometry(Part.ArcOfCircle(Part.Circle(V(24.51, 29.96, 0), V(0, 0, 1), 2.54), math.radians(3), math.radians(90)), False)
sketch2.addConstraint(Sketcher.Constraint("Coincident", 0, 2, 1, 1))
sketch2.addConstraint(Sketcher.Constraint("Coincident", 1, 2, 2, 1))
sketch2.addConstraint(Sketcher.Constraint("Tangent", 2, 2, 3, 1))
sketch2.addConstraint(Sketcher.Constraint("Tangent", 3, 2, 4, 1))
sketch2.addConstraint(Sketcher.Constraint("Tangent", 4, 2, 5, 1))
sketch2.addConstraint(Sketcher.Constraint("Tangent", 5, 2, 0, 1))
sketch2.addConstraint(Sketcher.Constraint("Horizontal", 0))
sketch2.addConstraint(Sketcher.Constraint("Vertical", 1))
sketch2.addConstraint(Sketcher.Constraint("Horizontal", 2))
sketch2.addConstraint(Sketcher.Constraint("Radius", 5, Q("0.1 in")))
sketch2.addConstraint(Sketcher.Constraint("Radius", 3, Q("0.01 in")))
sketch2.addConstraint(Sketcher.Constraint("DistanceY", 1, 2, 1, 1, Q("4.54963 mm")))
sketch2.addConstraint(Sketcher.Constraint("DistanceX", 5, 3, 3, 2, Q("2.638798 mm")))
sketch2.addConstraint(Sketcher.Constraint("DistanceX", 0, 2, 0, 1, Q("4.545282 mm")))
sketch2.addConstraint(Sketcher.Constraint("DistanceX", -1, 1, 3, 3, Q("26.897881 mm")))
sketch2.addConstraint(Sketcher.Constraint("DistanceY", -1, 1, 3, 3, Q("28.200891 mm")))
pocket1 = body.newObject("PartDesign::Pocket", "Pocket")
pocket1.Profile = sketch2
pocket1.Type = "ThroughAll"
pocket1.Midplane = True

doc.recompute()
